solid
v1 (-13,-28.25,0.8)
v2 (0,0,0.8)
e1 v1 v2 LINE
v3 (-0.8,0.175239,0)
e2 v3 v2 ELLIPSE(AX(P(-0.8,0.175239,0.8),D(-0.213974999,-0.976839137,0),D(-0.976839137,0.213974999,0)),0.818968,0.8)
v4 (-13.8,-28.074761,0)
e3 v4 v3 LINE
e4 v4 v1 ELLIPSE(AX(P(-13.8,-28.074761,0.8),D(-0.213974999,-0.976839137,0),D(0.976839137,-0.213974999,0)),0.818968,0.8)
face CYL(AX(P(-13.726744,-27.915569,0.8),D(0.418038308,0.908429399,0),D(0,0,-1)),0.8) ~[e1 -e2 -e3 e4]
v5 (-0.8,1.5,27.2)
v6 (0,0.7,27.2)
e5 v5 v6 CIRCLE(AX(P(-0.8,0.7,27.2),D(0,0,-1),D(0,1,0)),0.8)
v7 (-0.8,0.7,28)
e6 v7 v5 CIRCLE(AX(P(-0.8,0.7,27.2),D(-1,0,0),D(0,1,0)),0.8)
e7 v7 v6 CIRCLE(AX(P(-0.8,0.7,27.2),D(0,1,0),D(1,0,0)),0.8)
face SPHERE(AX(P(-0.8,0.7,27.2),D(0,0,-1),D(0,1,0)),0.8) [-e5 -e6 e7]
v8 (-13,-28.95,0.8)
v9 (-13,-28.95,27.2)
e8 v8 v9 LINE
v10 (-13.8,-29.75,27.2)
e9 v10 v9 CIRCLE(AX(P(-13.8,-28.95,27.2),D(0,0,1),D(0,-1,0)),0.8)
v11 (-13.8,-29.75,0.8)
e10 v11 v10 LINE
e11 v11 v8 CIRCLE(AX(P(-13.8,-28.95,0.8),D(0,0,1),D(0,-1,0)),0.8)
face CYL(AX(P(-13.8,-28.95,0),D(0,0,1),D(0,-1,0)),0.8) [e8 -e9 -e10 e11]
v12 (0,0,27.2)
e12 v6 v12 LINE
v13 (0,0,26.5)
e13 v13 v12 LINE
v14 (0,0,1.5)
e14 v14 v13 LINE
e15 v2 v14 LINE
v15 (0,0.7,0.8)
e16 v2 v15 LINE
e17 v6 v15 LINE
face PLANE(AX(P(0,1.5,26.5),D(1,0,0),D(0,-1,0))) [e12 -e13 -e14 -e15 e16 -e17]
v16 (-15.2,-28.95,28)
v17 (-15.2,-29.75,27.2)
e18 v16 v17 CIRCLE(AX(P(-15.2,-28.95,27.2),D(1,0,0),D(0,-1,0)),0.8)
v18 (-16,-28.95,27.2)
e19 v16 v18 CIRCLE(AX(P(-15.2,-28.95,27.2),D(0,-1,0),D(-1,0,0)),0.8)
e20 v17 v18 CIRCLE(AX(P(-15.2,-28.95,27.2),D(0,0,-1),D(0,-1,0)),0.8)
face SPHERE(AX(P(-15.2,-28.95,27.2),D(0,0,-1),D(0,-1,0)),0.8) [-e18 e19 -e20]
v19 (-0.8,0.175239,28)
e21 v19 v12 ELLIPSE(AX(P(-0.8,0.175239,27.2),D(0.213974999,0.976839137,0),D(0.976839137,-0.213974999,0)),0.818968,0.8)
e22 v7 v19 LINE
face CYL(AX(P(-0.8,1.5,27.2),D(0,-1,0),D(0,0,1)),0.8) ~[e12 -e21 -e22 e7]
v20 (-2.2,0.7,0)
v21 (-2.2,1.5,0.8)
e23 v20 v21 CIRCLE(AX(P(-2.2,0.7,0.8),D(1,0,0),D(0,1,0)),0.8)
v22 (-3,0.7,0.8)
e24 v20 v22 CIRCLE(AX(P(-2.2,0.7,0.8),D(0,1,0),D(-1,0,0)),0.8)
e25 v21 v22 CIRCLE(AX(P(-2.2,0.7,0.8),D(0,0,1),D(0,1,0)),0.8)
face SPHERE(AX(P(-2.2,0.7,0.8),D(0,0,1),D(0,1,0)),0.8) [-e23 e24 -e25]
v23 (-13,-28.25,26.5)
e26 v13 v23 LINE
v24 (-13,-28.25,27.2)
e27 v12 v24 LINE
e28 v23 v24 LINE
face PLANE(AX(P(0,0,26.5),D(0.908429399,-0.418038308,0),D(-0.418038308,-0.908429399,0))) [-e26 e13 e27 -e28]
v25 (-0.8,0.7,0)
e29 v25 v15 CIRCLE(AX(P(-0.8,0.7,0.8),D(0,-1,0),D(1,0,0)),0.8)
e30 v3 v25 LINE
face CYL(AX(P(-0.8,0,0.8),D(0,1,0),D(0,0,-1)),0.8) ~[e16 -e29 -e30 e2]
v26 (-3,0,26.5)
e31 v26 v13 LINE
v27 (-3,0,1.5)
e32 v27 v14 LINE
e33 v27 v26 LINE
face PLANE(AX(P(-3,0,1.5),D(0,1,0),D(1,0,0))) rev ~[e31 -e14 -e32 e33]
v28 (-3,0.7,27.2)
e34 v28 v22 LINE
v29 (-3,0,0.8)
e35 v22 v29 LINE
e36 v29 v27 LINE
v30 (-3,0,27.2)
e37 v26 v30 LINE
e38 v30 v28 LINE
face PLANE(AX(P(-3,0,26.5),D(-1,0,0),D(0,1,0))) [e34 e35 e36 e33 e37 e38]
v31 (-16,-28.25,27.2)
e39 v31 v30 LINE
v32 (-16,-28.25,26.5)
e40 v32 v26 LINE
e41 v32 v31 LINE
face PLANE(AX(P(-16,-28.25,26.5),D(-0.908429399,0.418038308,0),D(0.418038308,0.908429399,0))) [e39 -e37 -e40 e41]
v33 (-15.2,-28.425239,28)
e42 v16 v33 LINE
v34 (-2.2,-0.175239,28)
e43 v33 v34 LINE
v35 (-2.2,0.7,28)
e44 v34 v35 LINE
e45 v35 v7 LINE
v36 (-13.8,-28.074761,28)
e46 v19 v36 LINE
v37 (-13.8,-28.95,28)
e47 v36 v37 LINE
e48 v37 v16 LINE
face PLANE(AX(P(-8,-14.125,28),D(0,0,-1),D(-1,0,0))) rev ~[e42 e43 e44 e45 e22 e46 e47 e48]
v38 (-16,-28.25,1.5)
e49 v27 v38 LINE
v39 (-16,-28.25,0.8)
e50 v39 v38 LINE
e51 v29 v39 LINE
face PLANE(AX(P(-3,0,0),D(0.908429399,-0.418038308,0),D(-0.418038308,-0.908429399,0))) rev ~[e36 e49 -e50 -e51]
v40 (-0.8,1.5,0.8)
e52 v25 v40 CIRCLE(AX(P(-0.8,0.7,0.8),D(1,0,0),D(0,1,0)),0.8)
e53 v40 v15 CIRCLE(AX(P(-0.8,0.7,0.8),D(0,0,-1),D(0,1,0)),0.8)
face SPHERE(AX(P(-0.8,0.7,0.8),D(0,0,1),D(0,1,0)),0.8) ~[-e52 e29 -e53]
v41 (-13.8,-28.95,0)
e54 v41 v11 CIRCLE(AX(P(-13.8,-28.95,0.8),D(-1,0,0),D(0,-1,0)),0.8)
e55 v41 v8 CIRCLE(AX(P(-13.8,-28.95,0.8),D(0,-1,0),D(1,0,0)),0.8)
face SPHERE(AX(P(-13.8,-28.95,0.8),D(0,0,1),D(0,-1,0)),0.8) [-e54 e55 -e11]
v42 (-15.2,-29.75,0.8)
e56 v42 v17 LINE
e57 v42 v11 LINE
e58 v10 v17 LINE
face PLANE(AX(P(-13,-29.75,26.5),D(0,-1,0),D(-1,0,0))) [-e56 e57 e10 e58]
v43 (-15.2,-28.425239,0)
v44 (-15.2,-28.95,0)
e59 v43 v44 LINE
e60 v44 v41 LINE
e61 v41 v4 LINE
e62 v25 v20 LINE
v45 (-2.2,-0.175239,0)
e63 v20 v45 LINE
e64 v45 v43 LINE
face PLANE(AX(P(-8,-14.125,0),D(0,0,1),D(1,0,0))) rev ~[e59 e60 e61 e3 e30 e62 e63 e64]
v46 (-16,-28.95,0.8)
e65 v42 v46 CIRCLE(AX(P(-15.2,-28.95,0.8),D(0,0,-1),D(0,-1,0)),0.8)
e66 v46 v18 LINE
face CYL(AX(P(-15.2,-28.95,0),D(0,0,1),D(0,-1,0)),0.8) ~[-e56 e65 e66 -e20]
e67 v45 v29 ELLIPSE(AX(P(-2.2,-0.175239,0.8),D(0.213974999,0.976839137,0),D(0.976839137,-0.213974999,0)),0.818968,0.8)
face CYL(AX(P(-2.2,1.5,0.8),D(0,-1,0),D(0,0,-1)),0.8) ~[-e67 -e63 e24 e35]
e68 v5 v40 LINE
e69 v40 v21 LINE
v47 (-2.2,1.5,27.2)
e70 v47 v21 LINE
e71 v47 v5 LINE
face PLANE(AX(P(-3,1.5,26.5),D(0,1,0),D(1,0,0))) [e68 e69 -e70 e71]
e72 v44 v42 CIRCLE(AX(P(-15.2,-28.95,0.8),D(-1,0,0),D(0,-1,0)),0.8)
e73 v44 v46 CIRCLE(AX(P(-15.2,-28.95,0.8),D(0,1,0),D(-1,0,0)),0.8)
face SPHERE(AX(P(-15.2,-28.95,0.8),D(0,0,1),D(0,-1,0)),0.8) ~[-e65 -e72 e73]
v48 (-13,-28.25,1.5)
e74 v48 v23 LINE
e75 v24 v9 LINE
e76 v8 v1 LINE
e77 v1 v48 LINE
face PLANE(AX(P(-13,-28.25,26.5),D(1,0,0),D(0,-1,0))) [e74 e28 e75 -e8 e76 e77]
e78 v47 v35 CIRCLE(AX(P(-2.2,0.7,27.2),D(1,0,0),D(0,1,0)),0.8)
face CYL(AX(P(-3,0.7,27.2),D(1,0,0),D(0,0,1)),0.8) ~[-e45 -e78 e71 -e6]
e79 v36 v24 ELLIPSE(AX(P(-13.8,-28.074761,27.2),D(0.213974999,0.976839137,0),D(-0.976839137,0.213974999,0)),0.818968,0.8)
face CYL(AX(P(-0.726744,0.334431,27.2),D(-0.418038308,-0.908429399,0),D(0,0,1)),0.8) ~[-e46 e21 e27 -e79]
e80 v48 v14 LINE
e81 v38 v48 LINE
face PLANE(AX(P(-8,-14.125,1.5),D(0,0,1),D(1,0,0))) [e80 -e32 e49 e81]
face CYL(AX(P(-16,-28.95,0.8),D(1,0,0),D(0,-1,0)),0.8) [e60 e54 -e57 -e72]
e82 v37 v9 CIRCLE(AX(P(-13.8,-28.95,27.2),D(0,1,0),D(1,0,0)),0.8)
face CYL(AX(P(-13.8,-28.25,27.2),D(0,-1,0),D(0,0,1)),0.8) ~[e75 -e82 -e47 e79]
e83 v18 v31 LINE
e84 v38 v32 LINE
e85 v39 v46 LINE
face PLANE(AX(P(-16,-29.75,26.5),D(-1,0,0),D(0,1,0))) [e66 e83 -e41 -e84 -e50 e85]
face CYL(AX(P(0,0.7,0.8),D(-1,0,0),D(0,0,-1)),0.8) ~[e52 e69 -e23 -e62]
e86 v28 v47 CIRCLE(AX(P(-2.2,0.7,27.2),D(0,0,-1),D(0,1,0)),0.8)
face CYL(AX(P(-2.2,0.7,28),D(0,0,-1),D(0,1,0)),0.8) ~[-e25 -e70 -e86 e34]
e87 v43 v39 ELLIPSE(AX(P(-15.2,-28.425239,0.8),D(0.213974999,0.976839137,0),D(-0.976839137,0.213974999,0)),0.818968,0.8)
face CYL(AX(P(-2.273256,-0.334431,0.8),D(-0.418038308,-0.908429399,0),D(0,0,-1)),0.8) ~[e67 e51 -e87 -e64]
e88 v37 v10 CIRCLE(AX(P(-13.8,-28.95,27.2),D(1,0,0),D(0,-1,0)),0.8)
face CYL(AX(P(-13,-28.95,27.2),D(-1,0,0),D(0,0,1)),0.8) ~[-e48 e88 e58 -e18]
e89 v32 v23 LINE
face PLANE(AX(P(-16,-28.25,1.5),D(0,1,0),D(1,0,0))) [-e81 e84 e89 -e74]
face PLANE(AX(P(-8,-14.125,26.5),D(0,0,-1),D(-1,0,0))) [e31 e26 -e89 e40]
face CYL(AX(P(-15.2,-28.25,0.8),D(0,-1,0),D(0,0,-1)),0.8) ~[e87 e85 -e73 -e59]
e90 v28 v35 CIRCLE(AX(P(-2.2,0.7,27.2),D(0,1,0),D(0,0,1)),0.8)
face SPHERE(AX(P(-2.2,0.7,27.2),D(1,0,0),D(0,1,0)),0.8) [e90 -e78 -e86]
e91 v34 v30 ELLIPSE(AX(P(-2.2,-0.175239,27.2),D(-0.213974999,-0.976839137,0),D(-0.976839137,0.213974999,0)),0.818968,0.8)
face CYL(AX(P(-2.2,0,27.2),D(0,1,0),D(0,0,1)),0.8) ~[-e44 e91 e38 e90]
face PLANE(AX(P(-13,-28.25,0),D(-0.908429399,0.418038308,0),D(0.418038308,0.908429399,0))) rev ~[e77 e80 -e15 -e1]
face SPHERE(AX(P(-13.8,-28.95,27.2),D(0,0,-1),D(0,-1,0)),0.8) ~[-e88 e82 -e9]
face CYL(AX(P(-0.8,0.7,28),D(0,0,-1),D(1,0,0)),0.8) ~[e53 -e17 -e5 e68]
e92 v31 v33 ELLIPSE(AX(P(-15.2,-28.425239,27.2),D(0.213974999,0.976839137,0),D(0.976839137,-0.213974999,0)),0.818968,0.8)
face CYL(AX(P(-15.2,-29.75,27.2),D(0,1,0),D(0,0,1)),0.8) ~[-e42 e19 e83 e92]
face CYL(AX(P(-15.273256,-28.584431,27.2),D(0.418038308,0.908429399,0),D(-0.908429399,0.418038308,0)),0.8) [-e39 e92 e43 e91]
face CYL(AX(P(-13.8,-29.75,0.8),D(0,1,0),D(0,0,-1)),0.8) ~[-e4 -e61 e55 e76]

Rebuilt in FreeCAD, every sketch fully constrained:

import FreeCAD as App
import Part
import Sketcher
Q = App.Units.Quantity


def edges_at(feature, points):
    """Names of the edges that pass closest to the given points."""
    edges = feature.Shape.Edges
    near = lambda p: min(range(len(edges)), key=lambda i: edges[i].distToShape(Part.Vertex(*p))[0])
    return sorted({f"Edge{near(p) + 1}" for p in points})


def add_polygon(sketch, points):
    """Adds a closed chain of lines whose ends are joined by coincident constraints."""
    first, n = sketch.GeometryCount, len(points)
    for a, b in zip(points, points[1:] + points[:1]):
        sketch.addGeometry(Part.LineSegment(App.Vector(*a, 0), App.Vector(*b, 0)), False)
    for i in range(n):
        sketch.addConstraint(Sketcher.Constraint("Coincident", first + i, 2, first + (i + 1) % n, 1))

doc = App.newDocument("Part")
params = doc.addObject("Spreadsheet::Sheet", "Params")
for row, (alias, value) in enumerate([
    ("sketch1_width", "3 mm"),
    ("sketch1_height", "1.5 mm"),
    ("pad1_length", "1.5 mm"),
    ("sketch2_width", "3 mm"),
    ("sketch2_height", "1.5 mm"),
    ("pad2_length", "25 mm"),
    ("sketch3_width", "3 mm"),
    ("sketch3_height", "1.5 mm"),
    ("pad3_length", "1.5 mm"),
    ("fillet_radius", "0.8 mm"),
], start=1):
    params.set(f"A{row}", alias)
    params.set(f"B{row}", "=" + value)
    params.setAlias(f"B{row}", alias)

body = doc.addObject("PartDesign::Body", "Body")

# Sketch on XY plane
sketch1 = body.newObject("Sketcher::SketchObject", "Sketch")
sketch1.AttachmentSupport = (doc.getObject("XY_Plane"), [""])
sketch1.MapMode = "FlatFace"
add_polygon(sketch1, [(0, 0), (0, 1.5), (-3, 1.5), (-3, 0), (-16, -28.2), (-16, -29.8), (-13, -29.8), (-13, -28.2)])  # lines 0-7
sketch1.addConstraint([
    Sketcher.Constraint("Vertical", 0),
    Sketcher.Constraint("Horizontal", 1),
    Sketcher.Constraint("Vertical", 2),
    Sketcher.Constraint("Vertical", 4),
    Sketcher.Constraint("Horizontal", 5),
    Sketcher.Constraint("Vertical", 6),
    Sketcher.Constraint("Coincident", 7, 2, -1, 1),
    Sketcher.Constraint("PointOnObject", 2, 2, -1),
    Sketcher.Constraint("Parallel", 3, 7),
    Sketcher.Constraint("Horizontal", 3, 2, 6, 2),
    Sketcher.Constraint("Equal", 2, 4),
    Sketcher.Constraint("DistanceX", 1, 2, 1, 1, Q("3 mm")),
    Sketcher.Constraint("DistanceY", 0, 1, 0, 2, Q("1.5 mm")),
    Sketcher.Constraint("DistanceX", 3, 2, -1, 1, Q("16 mm")),
    Sketcher.Constraint("DistanceY", 3, 2, -1, 1, Q("28.25 mm")),
])
sketch1.setExpression("Constraints[19]", "Params.sketch1_width")
sketch1.setExpression("Constraints[20]", "Params.sketch1_height")
pad1 = body.newObject("PartDesign::Pad", "Pad")
pad1.Profile = sketch1
pad1.setExpression("Length", "Params.pad1_length")

# Sketch on XY plane
sketch2 = body.newObject("Sketcher::SketchObject", "Sketch001")
sketch2.AttachmentSupport = (doc.getObject("XY_Plane"), [""])
sketch2.MapMode = "FlatFace"
sketch2.AttachmentOffset = App.Placement(App.Vector(0, 0, 1.5), App.Rotation())
add_polygon(sketch2, [(-3, 1.5), (-3, 0), (0, 0), (0, 1.5)])  # lines 0-3
add_polygon(sketch2, [(-16, -28.2), (-16, -29.8), (-13, -29.8), (-13, -28.2)])  # lines 4-7
sketch2.addConstraint([
    Sketcher.Constraint("Vertical", 0),
    Sketcher.Constraint("Horizontal", 1),
    Sketcher.Constraint("Vertical", 2),
    Sketcher.Constraint("Horizontal", 3),
    Sketcher.Constraint("Vertical", 4),
    Sketcher.Constraint("Horizontal", 5),
    Sketcher.Constraint("Vertical", 6),
    Sketcher.Constraint("Horizontal", 7),
    Sketcher.Constraint("Coincident", 1, 2, -1, 1),
    Sketcher.Constraint("Equal", 3, 5),
    Sketcher.Constraint("Equal", 2, 4),
    Sketcher.Constraint("DistanceX", 1, 1, 1, 2, Q("3 mm")),
    Sketcher.Constraint("DistanceY", 0, 2, 0, 1, Q("1.5 mm")),
    Sketcher.Constraint("DistanceX", 4, 2, -1, 1, Q("16 mm")),
    Sketcher.Constraint("DistanceY", 4, 2, -1, 1, Q("29.75 mm")),
])
sketch2.setExpression("Constraints[19]", "Params.sketch2_width")
sketch2.setExpression("Constraints[20]", "Params.sketch2_height")
pad2 = body.newObject("PartDesign::Pad", "Pad001")
pad2.Profile = sketch2
pad2.setExpression("Length", "Params.pad2_length")

# Sketch on XY plane
sketch3 = body.newObject("Sketcher::SketchObject", "Sketch002")
sketch3.AttachmentSupport = (doc.getObject("XY_Plane"), [""])
sketch3.MapMode = "FlatFace"
sketch3.AttachmentOffset = App.Placement(App.Vector(0, 0, 26.5), App.Rotation())
add_polygon(sketch3, [(-3, 0), (-16, -28.2), (-16, -29.8), (-13, -29.8), (-13, -28.2), (0, 0), (0, 1.5), (-3, 1.5)])  # lines 0-7
sketch3.addConstraint([
    Sketcher.Constraint("Vertical", 1),
    Sketcher.Constraint("Horizontal", 2),
    Sketcher.Constraint("Vertical", 3),
    Sketcher.Constraint("Vertical", 5),
    Sketcher.Constraint("Horizontal", 6),
    Sketcher.Constraint("Vertical", 7),
    Sketcher.Constraint("Coincident", 4, 2, -1, 1),
    Sketcher.Constraint("PointOnObject", 7, 2, -1),
    Sketcher.Constraint("Parallel", 0, 4),
    Sketcher.Constraint("Horizontal", 0, 2, 3, 2),
    Sketcher.Constraint("Equal", 3, 5),
    Sketcher.Constraint("DistanceX", 2, 1, 2, 2, Q("3 mm")),
    Sketcher.Constraint("DistanceY", 1, 2, 1, 1, Q("1.5 mm")),
    Sketcher.Constraint("DistanceX", 0, 2, -1, 1, Q("16 mm")),
    Sketcher.Constraint("DistanceY", 0, 2, -1, 1, Q("28.25 mm")),
])
sketch3.setExpression("Constraints[19]", "Params.sketch3_width")
sketch3.setExpression("Constraints[20]", "Params.sketch3_height")
pad3 = body.newObject("PartDesign::Pad", "Pad002")
pad3.Profile = sketch3
pad3.setExpression("Length", "Params.pad3_length")
doc.recompute()

fillet = body.newObject("PartDesign::Fillet", "Fillet")
fillet.Base = (pad3, edges_at(pad3, [
    (-16, -29.75, 14),
    (-13, -29.75, 14),
    (-14.5, -29.75, 0),
    (-14.5, -29.75, 28),
    (0, 1.5, 14),
    (-1.5, 1.5, 28),
    (-3, 1.5, 14),
    (-1.5, 1.5, 0),
    (0, 0.75, 0),
    (-6.5, -14.125, 0),
    (-13, -29, 0),
    (-3, 0.75, 0),
    (-9.5, -14.125, 0),
    (-16, -29, 0),
    (0, 0.75, 28),
    (-6.5, -14.125, 28),
    (-13, -29, 28),
    (-3, 0.75, 28),
    (-9.5, -14.125, 28),
    (-16, -29, 28),
]))
fillet.setExpression("Radius", "Params.fillet_radius")

doc.recompute()
